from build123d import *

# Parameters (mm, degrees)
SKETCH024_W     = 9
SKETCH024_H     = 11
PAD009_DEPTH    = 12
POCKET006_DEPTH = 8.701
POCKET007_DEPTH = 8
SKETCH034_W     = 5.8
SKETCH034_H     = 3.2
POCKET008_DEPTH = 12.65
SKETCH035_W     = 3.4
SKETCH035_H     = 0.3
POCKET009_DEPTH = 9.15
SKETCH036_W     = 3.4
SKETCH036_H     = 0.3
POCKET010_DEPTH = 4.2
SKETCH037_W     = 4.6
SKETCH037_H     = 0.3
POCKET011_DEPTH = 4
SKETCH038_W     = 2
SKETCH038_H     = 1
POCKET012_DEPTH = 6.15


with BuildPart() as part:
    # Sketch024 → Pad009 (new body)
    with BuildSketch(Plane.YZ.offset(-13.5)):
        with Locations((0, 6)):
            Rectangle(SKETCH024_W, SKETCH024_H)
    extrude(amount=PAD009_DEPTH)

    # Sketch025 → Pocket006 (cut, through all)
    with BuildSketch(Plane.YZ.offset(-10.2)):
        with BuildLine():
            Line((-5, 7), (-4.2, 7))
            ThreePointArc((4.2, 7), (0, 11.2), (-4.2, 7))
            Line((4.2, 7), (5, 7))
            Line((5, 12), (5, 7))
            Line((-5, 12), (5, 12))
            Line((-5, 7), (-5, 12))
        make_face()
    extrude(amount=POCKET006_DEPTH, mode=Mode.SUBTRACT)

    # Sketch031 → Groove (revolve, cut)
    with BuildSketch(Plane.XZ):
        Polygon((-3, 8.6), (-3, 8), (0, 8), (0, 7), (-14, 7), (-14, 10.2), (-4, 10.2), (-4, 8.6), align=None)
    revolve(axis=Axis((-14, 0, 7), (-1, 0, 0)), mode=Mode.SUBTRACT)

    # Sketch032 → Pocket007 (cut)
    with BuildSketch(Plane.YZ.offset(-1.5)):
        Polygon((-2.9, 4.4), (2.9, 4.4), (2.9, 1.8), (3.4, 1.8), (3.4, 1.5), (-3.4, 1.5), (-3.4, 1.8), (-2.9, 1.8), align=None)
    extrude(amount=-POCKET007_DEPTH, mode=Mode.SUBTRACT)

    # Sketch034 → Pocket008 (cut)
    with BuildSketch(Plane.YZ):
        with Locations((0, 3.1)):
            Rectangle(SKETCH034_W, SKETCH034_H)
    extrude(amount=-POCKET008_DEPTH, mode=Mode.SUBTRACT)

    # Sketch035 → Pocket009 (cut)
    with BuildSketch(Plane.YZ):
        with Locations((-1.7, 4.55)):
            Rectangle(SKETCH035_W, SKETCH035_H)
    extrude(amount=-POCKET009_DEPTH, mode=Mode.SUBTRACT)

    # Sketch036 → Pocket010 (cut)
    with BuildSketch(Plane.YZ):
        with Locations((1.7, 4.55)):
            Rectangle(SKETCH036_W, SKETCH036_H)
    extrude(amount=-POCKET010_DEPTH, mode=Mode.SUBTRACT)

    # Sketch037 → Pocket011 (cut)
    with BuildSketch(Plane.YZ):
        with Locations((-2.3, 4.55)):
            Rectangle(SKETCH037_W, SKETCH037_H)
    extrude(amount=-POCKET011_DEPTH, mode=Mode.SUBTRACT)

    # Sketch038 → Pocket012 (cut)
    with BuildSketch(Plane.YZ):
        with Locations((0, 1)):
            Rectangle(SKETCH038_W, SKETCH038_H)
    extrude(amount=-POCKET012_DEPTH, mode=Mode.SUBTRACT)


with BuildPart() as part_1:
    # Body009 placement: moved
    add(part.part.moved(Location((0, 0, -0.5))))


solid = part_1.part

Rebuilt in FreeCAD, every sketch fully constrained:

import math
import FreeCAD as App
import Part
import Sketcher
Q = App.Units.Quantity

doc = App.newDocument("Part")
body = doc.addObject("PartDesign::Body", "Body")

# Sketch on YZ plane
sketch1 = body.newObject("Sketcher::SketchObject", "Sketch")
sketch1.AttachmentSupport = (doc.getObject("YZ_Plane"), [""])
sketch1.MapMode = "FlatFace"
sketch1.AttachmentOffset = App.Placement(App.Vector(0, 0, -13.5), App.Rotation())
sketch1.addGeometry([
    Part.LineSegment(App.Vector(-4, 12, 0), App.Vector(-4, 0, 0)),
    Part.LineSegment(App.Vector(-4, 0, 0), App.Vector(4, 0, 0)),
    Part.LineSegment(App.Vector(4, 0, 0), App.Vector(4, 12, 0)),
    Part.LineSegment(App.Vector(4, 12, 0), App.Vector(-4, 12, 0)),
], False)
sketch1.addConstraint([
    Sketcher.Constraint("Coincident", 0, 2, 1, 1),
    Sketcher.Constraint("Coincident", 1, 2, 2, 1),
    Sketcher.Constraint("Coincident", 2, 2, 3, 1),
    Sketcher.Constraint("Coincident", 3, 2, 0, 1),
    Sketcher.Constraint("Vertical", 0),
    Sketcher.Constraint("Horizontal", 1),
    Sketcher.Constraint("Vertical", 2),
    Sketcher.Constraint("Horizontal", 3),
    Sketcher.Constraint("DistanceX", 1, 1, 1, 2, Q("9 mm")),
    Sketcher.Constraint("DistanceY", 0, 2, 0, 1, Q("11 mm")),
    Sketcher.Constraint("DistanceX", 0, 2, -1, 1, Q("4.5 mm")),
    Sketcher.Constraint("DistanceY", -1, 1, 0, 2, Q("0.5 mm")),
])
pad1 = body.newObject("PartDesign::Pad", "Pad")
pad1.Profile = sketch1
pad1.Length = 12

# Sketch on YZ plane
sketch2 = body.newObject("Sketcher::SketchObject", "Sketch001")
sketch2.AttachmentSupport = (doc.getObject("YZ_Plane"), [""])
sketch2.MapMode = "FlatFace"
sketch2.AttachmentOffset = App.Placement(App.Vector(0, 0, -10.2), App.Rotation())
sketch2.addGeometry([
    Part.LineSegment(App.Vector(-5, 7, 0), App.Vector(-4.2, 7, 0)),  # 0
    Part.ArcOfCircle(Part.Circle(App.Vector(0, 7, 0), App.Vector(0, 0, 1), 4.2), math.radians(0), math.radians(180)),  # 1
    Part.LineSegment(App.Vector(4.2, 7, 0), App.Vector(5, 7, 0)),  # 2
    Part.LineSegment(App.Vector(5, 7, 0), App.Vector(5, 12, 0)),  # 3
    Part.LineSegment(App.Vector(5, 12, 0), App.Vector(-5, 12, 0)),  # 4
    Part.LineSegment(App.Vector(-5, 12, 0), App.Vector(-5, 7, 0)),  # 5
], False)
sketch2.addConstraint([
    Sketcher.Constraint("Coincident", 0, 2, 1, 2),
    Sketcher.Constraint("Coincident", 1, 1, 2, 1),
    Sketcher.Constraint("Coincident", 2, 2, 3, 1),
    Sketcher.Constraint("Coincident", 3, 2, 4, 1),
    Sketcher.Constraint("Coincident", 4, 2, 5, 1),
    Sketcher.Constraint("Coincident", 5, 2, 0, 1),
    Sketcher.Constraint("Horizontal", 0),
    Sketcher.Constraint("Horizontal", 2),
    Sketcher.Constraint("Vertical", 3),
    Sketcher.Constraint("Horizontal", 4),
    Sketcher.Constraint("Vertical", 5),
    Sketcher.Constraint("Symmetric", 0, 2, 1, 1, -2),
    Sketcher.Constraint("Horizontal", 1, 3, 0, 2),
    Sketcher.Constraint("Equal", 0, 2),
    Sketcher.Constraint("Radius", 1, Q("4.2 mm")),
    Sketcher.Constraint("DistanceX", 4, 2, 4, 1, Q("10 mm")),
    Sketcher.Constraint("DistanceY", 3, 1, 3, 2, Q("5 mm")),
    Sketcher.Constraint("DistanceY", -1, 1, 1, 3, Q("7 mm")),
])
pocket1 = body.newObject("PartDesign::Pocket", "Pocket")
pocket1.Profile = sketch2
pocket1.Type = "ThroughAll"
pocket1.Reversed = True

# Sketch on XZ plane
sketch3 = body.newObject("Sketcher::SketchObject", "Sketch002")
sketch3.AttachmentSupport = (doc.getObject("XZ_Plane"), [""])
sketch3.MapMode = "FlatFace"
sketch3.addGeometry([
    Part.LineSegment(App.Vector(-3, 8, 0), App.Vector(-3, 8.6, 0)),  # 0
    Part.LineSegment(App.Vector(-3, 8.6, 0), App.Vector(-4, 8.6, 0)),  # 1
    Part.LineSegment(App.Vector(-4, 8.6, 0), App.Vector(-4, 10.2, 0)),  # 2
    Part.LineSegment(App.Vector(-4, 10.2, 0), App.Vector(-14, 10.2, 0)),  # 3
    Part.LineSegment(App.Vector(-14, 10.2, 0), App.Vector(-14, 7, 0)),  # 4
    Part.LineSegment(App.Vector(-14, 7, 0), App.Vector(0, 7, 0)),  # 5
    Part.LineSegment(App.Vector(0, 7, 0), App.Vector(0, 8, 0)),  # 6
    Part.LineSegment(App.Vector(0, 8, 0), App.Vector(-3, 8, 0)),  # 7
], False)
sketch3.addGeometry(Part.LineSegment(App.Vector(0, 7, 0), App.Vector(-14, 7, 0)), True)  # axis
sketch3.addConstraint([
    Sketcher.Constraint("Coincident", 0, 2, 1, 1),
    Sketcher.Constraint("Coincident", 1, 2, 2, 1),
    Sketcher.Constraint("Coincident", 2, 2, 3, 1),
    Sketcher.Constraint("Coincident", 3, 2, 4, 1),
    Sketcher.Constraint("Coincident", 4, 2, 5, 1),
    Sketcher.Constraint("Coincident", 5, 2, 6, 1),
    Sketcher.Constraint("Coincident", 6, 2, 7, 1),
    Sketcher.Constraint("Coincident", 7, 2, 0, 1),
    Sketcher.Constraint("Vertical", 0),
    Sketcher.Constraint("Horizontal", 1),
    Sketcher.Constraint("Vertical", 2),
    Sketcher.Constraint("Horizontal", 3),
    Sketcher.Constraint("Vertical", 4),
    Sketcher.Constraint("Horizontal", 5),
    Sketcher.Constraint("Vertical", 6),
    Sketcher.Constraint("Horizontal", 7),
    Sketcher.Constraint("Horizontal", 8),
    Sketcher.Constraint("Coincident", 8, 1, 5, 2),
    Sketcher.Constraint("PointOnObject", 5, 2, -2),
    Sketcher.Constraint("Vertical", 3, 2, 8, 2),
    Sketcher.Constraint("Equal", 1, 6),
    Sketcher.Constraint("DistanceX", 1, 2, 1, 1, Q("1 mm")),
    Sketcher.Constraint("DistanceX", 3, 2, 3, 1, Q("10 mm")),
    Sketcher.Constraint("DistanceX", 5, 1, 5, 2, Q("14 mm")),
    Sketcher.Constraint("DistanceY", 0, 1, 0, 2, Q("0.6 mm")),
    Sketcher.Constraint("DistanceY", 2, 1, 2, 2, Q("1.6 mm")),
    Sketcher.Constraint("DistanceY", -1, 1, 4, 2, Q("7 mm")),
])
groove = body.newObject("PartDesign::Groove", "Groove")
groove.Profile = sketch3
groove.ReferenceAxis = (sketch3, ["Axis0"])
groove.Angle = 360

# Sketch on YZ plane
sketch4 = body.newObject("Sketcher::SketchObject", "Sketch003")
sketch4.AttachmentSupport = (doc.getObject("YZ_Plane"), [""])
sketch4.MapMode = "FlatFace"
sketch4.AttachmentOffset = App.Placement(App.Vector(0, 0, -1.5), App.Rotation())
sketch4.addGeometry([
    Part.LineSegment(App.Vector(2.9, 4.4, 0), App.Vector(-2.9, 4.4, 0)),  # 0
    Part.LineSegment(App.Vector(-2.9, 4.4, 0), App.Vector(-2.9, 1.8, 0)),  # 1
    Part.LineSegment(App.Vector(-2.9, 1.8, 0), App.Vector(-3.4, 1.8, 0)),  # 2
    Part.LineSegment(App.Vector(-3.4, 1.8, 0), App.Vector(-3.4, 1.5, 0)),  # 3
    Part.LineSegment(App.Vector(-3.4, 1.5, 0), App.Vector(3.4, 1.5, 0)),  # 4
    Part.LineSegment(App.Vector(3.4, 1.5, 0), App.Vector(3.4, 1.8, 0)),  # 5
    Part.LineSegment(App.Vector(3.4, 1.8, 0), App.Vector(2.9, 1.8, 0)),  # 6
    Part.LineSegment(App.Vector(2.9, 1.8, 0), App.Vector(2.9, 4.4, 0)),  # 7
], False)
sketch4.addConstraint([
    Sketcher.Constraint("Coincident", 0, 2, 1, 1),
    Sketcher.Constraint("Coincident", 1, 2, 2, 1),
    Sketcher.Constraint("Coincident", 2, 2, 3, 1),
    Sketcher.Constraint("Coincident", 3, 2, 4, 1),
    Sketcher.Constraint("Coincident", 4, 2, 5, 1),
    Sketcher.Constraint("Coincident", 5, 2, 6, 1),
    Sketcher.Constraint("Coincident", 6, 2, 7, 1),
    Sketcher.Constraint("Coincident", 7, 2, 0, 1),
    Sketcher.Constraint("Horizontal", 0),
    Sketcher.Constraint("Vertical", 1),
    Sketcher.Constraint("Horizontal", 2),
    Sketcher.Constraint("Vertical", 3),
    Sketcher.Constraint("Horizontal", 4),
    Sketcher.Constraint("Vertical", 5),
    Sketcher.Constraint("Horizontal", 6),
    Sketcher.Constraint("Vertical", 7),
    Sketcher.Constraint("Symmetric", 2, 2, 5, 2, -2),
    Sketcher.Constraint("Equal", 2, 6),
    Sketcher.Constraint("DistanceX", 0, 2, 0, 1, Q("5.8 mm")),
    Sketcher.Constraint("DistanceX", 2, 2, 2, 1, Q("0.5 mm")),
    Sketcher.Constraint("DistanceY", 1, 2, 1, 1, Q("2.6 mm")),
    Sketcher.Constraint("DistanceY", 3, 2, 3, 1, Q("0.3 mm")),
    Sketcher.Constraint("DistanceY", -1, 1, 0, 2, Q("4.4 mm")),
])
pocket2 = body.newObject("PartDesign::Pocket", "Pocket001")
pocket2.Profile = sketch4
pocket2.Length = 8

# Sketch on YZ plane
sketch5 = body.newObject("Sketcher::SketchObject", "Sketch004")
sketch5.AttachmentSupport = (doc.getObject("YZ_Plane"), [""])
sketch5.MapMode = "FlatFace"
sketch5.addGeometry([
    Part.LineSegment(App.Vector(-2.9, 4.7, 0), App.Vector(-2.9, 1.5, 0)),
    Part.LineSegment(App.Vector(-2.9, 1.5, 0), App.Vector(2.9, 1.5, 0)),
    Part.LineSegment(App.Vector(2.9, 1.5, 0), App.Vector(2.9, 4.7, 0)),
    Part.LineSegment(App.Vector(2.9, 4.7, 0), App.Vector(-2.9, 4.7, 0)),
], False)
sketch5.addConstraint([
    Sketcher.Constraint("Coincident", 0, 2, 1, 1),
    Sketcher.Constraint("Coincident", 1, 2, 2, 1),
    Sketcher.Constraint("Coincident", 2, 2, 3, 1),
    Sketcher.Constraint("Coincident", 3, 2, 0, 1),
    Sketcher.Constraint("Vertical", 0),
    Sketcher.Constraint("Horizontal", 1),
    Sketcher.Constraint("Vertical", 2),
    Sketcher.Constraint("Horizontal", 3),
    Sketcher.Constraint("DistanceX", 1, 1, 1, 2, Q("5.8 mm")),
    Sketcher.Constraint("DistanceY", 0, 2, 0, 1, Q("3.2 mm")),
    Sketcher.Constraint("DistanceX", 0, 2, -1, 1, Q("2.9 mm")),
    Sketcher.Constraint("DistanceY", -1, 1, 0, 2, Q("1.5 mm")),
])
pocket3 = body.newObject("PartDesign::Pocket", "Pocket002")
pocket3.Profile = sketch5
pocket3.Length = 12.65

# Sketch on YZ plane
sketch6 = body.newObject("Sketcher::SketchObject", "Sketch005")
sketch6.AttachmentSupport = (doc.getObject("YZ_Plane"), [""])
sketch6.MapMode = "FlatFace"
sketch6.addGeometry([
    Part.LineSegment(App.Vector(-3.4, 4.7, 0), App.Vector(-3.4, 4.4, 0)),
    Part.LineSegment(App.Vector(-3.4, 4.4, 0), App.Vector(0, 4.4, 0)),
    Part.LineSegment(App.Vector(0, 4.4, 0), App.Vector(0, 4.7, 0)),
    Part.LineSegment(App.Vector(0, 4.7, 0), App.Vector(-3.4, 4.7, 0)),
], False)
sketch6.addConstraint([
    Sketcher.Constraint("Coincident", 0, 2, 1, 1),
    Sketcher.Constraint("Coincident", 1, 2, 2, 1),
    Sketcher.Constraint("Coincident", 2, 2, 3, 1),
    Sketcher.Constraint("Coincident", 3, 2, 0, 1),
    Sketcher.Constraint("Vertical", 0),
    Sketcher.Constraint("Horizontal", 1),
    Sketcher.Constraint("Vertical", 2),
    Sketcher.Constraint("Horizontal", 3),
    Sketcher.Constraint("PointOnObject", 1, 2, -2),
    Sketcher.Constraint("DistanceX", 1, 1, 1, 2, Q("3.4 mm")),
    Sketcher.Constraint("DistanceY", 0, 2, 0, 1, Q("0.3 mm")),
    Sketcher.Constraint("DistanceY", -1, 1, 0, 2, Q("4.4 mm")),
])
pocket4 = body.newObject("PartDesign::Pocket", "Pocket003")
pocket4.Profile = sketch6
pocket4.Length = 9.15

# Sketch on YZ plane
sketch7 = body.newObject("Sketcher::SketchObject", "Sketch006")
sketch7.AttachmentSupport = (doc.getObject("YZ_Plane"), [""])
sketch7.MapMode = "FlatFace"
sketch7.addGeometry([
    Part.LineSegment(App.Vector(0, 4.7, 0), App.Vector(0, 4.4, 0)),
    Part.LineSegment(App.Vector(0, 4.4, 0), App.Vector(3.4, 4.4, 0)),
    Part.LineSegment(App.Vector(3.4, 4.4, 0), App.Vector(3.4, 4.7, 0)),
    Part.LineSegment(App.Vector(3.4, 4.7, 0), App.Vector(0, 4.7, 0)),
], False)
sketch7.addConstraint([
    Sketcher.Constraint("Coincident", 0, 2, 1, 1),
    Sketcher.Constraint("Coincident", 1, 2, 2, 1),
    Sketcher.Constraint("Coincident", 2, 2, 3, 1),
    Sketcher.Constraint("Coincident", 3, 2, 0, 1),
    Sketcher.Constraint("Vertical", 0),
    Sketcher.Constraint("Horizontal", 1),
    Sketcher.Constraint("Vertical", 2),
    Sketcher.Constraint("Horizontal", 3),
    Sketcher.Constraint("PointOnObject", 0, 2, -2),
    Sketcher.Constraint("DistanceX", 1, 1, 1, 2, Q("3.4 mm")),
    Sketcher.Constraint("DistanceY", 0, 2, 0, 1, Q("0.3 mm")),
    Sketcher.Constraint("DistanceY", -1, 1, 0, 2, Q("4.4 mm")),
])
pocket5 = body.newObject("PartDesign::Pocket", "Pocket004")
pocket5.Profile = sketch7
pocket5.Length = 4.2

# Sketch on YZ plane
sketch8 = body.newObject("Sketcher::SketchObject", "Sketch007")
sketch8.AttachmentSupport = (doc.getObject("YZ_Plane"), [""])
sketch8.MapMode = "FlatFace"
sketch8.addGeometry([
    Part.LineSegment(App.Vector(-4.6, 4.7, 0), App.Vector(-4.6, 4.4, 0)),
    Part.LineSegment(App.Vector(-4.6, 4.4, 0), App.Vector(0, 4.4, 0)),
    Part.LineSegment(App.Vector(0, 4.4, 0), App.Vector(0, 4.7, 0)),
    Part.LineSegment(App.Vector(0, 4.7, 0), App.Vector(-4.6, 4.7, 0)),
], False)
sketch8.addConstraint([
    Sketcher.Constraint("Coincident", 0, 2, 1, 1),
    Sketcher.Constraint("Coincident", 1, 2, 2, 1),
    Sketcher.Constraint("Coincident", 2, 2, 3, 1),
    Sketcher.Constraint("Coincident", 3, 2, 0, 1),
    Sketcher.Constraint("Vertical", 0),
    Sketcher.Constraint("Horizontal", 1),
    Sketcher.Constraint("Vertical", 2),
    Sketcher.Constraint("Horizontal", 3),
    Sketcher.Constraint("PointOnObject", 1, 2, -2),
    Sketcher.Constraint("DistanceX", 1, 1, 1, 2, Q("4.6 mm")),
    Sketcher.Constraint("DistanceY", 0, 2, 0, 1, Q("0.3 mm")),
    Sketcher.Constraint("DistanceY", -1, 1, 0, 2, Q("4.4 mm")),
])
pocket6 = body.newObject("PartDesign::Pocket", "Pocket005")
pocket6.Profile = sketch8
pocket6.Length = 4

# Sketch on YZ plane
sketch9 = body.newObject("Sketcher::SketchObject", "Sketch008")
sketch9.AttachmentSupport = (doc.getObject("YZ_Plane"), [""])
sketch9.MapMode = "FlatFace"
sketch9.addGeometry([
    Part.LineSegment(App.Vector(-1, 1.5, 0), App.Vector(-1, 0.5, 0)),
    Part.LineSegment(App.Vector(-1, 0.5, 0), App.Vector(1, 0.5, 0)),
    Part.LineSegment(App.Vector(1, 0.5, 0), App.Vector(1, 1.5, 0)),
    Part.LineSegment(App.Vector(1, 1.5, 0), App.Vector(-1, 1.5, 0)),
], False)
sketch9.addConstraint([
    Sketcher.Constraint("Coincident", 0, 2, 1, 1),
    Sketcher.Constraint("Coincident", 1, 2, 2, 1),
    Sketcher.Constraint("Coincident", 2, 2, 3, 1),
    Sketcher.Constraint("Coincident", 3, 2, 0, 1),
    Sketcher.Constraint("Vertical", 0),
    Sketcher.Constraint("Horizontal", 1),
    Sketcher.Constraint("Vertical", 2),
    Sketcher.Constraint("Horizontal", 3),
    Sketcher.Constraint("DistanceX", 1, 1, 1, 2, Q("2 mm")),
    Sketcher.Constraint("DistanceY", 0, 2, 0, 1, Q("1 mm")),
    Sketcher.Constraint("DistanceX", 0, 2, -1, 1, Q("1 mm")),
    Sketcher.Constraint("DistanceY", -1, 1, 0, 2, Q("0.5 mm")),
])
pocket7 = body.newObject("PartDesign::Pocket", "Pocket006")
pocket7.Profile = sketch9
pocket7.Length = 6.15
body2 = doc.addObject("PartDesign::Body", "Body001")
doc.recompute()

body.Placement = App.Placement(App.Vector(0, 0, -0.5), App.Rotation(App.Vector(0, 0, 1), 0))
boolean = body2.newObject("PartDesign::Boolean", "Boolean")
boolean.Type = "Fuse"
boolean.addObjects([body])

doc.recompute()
